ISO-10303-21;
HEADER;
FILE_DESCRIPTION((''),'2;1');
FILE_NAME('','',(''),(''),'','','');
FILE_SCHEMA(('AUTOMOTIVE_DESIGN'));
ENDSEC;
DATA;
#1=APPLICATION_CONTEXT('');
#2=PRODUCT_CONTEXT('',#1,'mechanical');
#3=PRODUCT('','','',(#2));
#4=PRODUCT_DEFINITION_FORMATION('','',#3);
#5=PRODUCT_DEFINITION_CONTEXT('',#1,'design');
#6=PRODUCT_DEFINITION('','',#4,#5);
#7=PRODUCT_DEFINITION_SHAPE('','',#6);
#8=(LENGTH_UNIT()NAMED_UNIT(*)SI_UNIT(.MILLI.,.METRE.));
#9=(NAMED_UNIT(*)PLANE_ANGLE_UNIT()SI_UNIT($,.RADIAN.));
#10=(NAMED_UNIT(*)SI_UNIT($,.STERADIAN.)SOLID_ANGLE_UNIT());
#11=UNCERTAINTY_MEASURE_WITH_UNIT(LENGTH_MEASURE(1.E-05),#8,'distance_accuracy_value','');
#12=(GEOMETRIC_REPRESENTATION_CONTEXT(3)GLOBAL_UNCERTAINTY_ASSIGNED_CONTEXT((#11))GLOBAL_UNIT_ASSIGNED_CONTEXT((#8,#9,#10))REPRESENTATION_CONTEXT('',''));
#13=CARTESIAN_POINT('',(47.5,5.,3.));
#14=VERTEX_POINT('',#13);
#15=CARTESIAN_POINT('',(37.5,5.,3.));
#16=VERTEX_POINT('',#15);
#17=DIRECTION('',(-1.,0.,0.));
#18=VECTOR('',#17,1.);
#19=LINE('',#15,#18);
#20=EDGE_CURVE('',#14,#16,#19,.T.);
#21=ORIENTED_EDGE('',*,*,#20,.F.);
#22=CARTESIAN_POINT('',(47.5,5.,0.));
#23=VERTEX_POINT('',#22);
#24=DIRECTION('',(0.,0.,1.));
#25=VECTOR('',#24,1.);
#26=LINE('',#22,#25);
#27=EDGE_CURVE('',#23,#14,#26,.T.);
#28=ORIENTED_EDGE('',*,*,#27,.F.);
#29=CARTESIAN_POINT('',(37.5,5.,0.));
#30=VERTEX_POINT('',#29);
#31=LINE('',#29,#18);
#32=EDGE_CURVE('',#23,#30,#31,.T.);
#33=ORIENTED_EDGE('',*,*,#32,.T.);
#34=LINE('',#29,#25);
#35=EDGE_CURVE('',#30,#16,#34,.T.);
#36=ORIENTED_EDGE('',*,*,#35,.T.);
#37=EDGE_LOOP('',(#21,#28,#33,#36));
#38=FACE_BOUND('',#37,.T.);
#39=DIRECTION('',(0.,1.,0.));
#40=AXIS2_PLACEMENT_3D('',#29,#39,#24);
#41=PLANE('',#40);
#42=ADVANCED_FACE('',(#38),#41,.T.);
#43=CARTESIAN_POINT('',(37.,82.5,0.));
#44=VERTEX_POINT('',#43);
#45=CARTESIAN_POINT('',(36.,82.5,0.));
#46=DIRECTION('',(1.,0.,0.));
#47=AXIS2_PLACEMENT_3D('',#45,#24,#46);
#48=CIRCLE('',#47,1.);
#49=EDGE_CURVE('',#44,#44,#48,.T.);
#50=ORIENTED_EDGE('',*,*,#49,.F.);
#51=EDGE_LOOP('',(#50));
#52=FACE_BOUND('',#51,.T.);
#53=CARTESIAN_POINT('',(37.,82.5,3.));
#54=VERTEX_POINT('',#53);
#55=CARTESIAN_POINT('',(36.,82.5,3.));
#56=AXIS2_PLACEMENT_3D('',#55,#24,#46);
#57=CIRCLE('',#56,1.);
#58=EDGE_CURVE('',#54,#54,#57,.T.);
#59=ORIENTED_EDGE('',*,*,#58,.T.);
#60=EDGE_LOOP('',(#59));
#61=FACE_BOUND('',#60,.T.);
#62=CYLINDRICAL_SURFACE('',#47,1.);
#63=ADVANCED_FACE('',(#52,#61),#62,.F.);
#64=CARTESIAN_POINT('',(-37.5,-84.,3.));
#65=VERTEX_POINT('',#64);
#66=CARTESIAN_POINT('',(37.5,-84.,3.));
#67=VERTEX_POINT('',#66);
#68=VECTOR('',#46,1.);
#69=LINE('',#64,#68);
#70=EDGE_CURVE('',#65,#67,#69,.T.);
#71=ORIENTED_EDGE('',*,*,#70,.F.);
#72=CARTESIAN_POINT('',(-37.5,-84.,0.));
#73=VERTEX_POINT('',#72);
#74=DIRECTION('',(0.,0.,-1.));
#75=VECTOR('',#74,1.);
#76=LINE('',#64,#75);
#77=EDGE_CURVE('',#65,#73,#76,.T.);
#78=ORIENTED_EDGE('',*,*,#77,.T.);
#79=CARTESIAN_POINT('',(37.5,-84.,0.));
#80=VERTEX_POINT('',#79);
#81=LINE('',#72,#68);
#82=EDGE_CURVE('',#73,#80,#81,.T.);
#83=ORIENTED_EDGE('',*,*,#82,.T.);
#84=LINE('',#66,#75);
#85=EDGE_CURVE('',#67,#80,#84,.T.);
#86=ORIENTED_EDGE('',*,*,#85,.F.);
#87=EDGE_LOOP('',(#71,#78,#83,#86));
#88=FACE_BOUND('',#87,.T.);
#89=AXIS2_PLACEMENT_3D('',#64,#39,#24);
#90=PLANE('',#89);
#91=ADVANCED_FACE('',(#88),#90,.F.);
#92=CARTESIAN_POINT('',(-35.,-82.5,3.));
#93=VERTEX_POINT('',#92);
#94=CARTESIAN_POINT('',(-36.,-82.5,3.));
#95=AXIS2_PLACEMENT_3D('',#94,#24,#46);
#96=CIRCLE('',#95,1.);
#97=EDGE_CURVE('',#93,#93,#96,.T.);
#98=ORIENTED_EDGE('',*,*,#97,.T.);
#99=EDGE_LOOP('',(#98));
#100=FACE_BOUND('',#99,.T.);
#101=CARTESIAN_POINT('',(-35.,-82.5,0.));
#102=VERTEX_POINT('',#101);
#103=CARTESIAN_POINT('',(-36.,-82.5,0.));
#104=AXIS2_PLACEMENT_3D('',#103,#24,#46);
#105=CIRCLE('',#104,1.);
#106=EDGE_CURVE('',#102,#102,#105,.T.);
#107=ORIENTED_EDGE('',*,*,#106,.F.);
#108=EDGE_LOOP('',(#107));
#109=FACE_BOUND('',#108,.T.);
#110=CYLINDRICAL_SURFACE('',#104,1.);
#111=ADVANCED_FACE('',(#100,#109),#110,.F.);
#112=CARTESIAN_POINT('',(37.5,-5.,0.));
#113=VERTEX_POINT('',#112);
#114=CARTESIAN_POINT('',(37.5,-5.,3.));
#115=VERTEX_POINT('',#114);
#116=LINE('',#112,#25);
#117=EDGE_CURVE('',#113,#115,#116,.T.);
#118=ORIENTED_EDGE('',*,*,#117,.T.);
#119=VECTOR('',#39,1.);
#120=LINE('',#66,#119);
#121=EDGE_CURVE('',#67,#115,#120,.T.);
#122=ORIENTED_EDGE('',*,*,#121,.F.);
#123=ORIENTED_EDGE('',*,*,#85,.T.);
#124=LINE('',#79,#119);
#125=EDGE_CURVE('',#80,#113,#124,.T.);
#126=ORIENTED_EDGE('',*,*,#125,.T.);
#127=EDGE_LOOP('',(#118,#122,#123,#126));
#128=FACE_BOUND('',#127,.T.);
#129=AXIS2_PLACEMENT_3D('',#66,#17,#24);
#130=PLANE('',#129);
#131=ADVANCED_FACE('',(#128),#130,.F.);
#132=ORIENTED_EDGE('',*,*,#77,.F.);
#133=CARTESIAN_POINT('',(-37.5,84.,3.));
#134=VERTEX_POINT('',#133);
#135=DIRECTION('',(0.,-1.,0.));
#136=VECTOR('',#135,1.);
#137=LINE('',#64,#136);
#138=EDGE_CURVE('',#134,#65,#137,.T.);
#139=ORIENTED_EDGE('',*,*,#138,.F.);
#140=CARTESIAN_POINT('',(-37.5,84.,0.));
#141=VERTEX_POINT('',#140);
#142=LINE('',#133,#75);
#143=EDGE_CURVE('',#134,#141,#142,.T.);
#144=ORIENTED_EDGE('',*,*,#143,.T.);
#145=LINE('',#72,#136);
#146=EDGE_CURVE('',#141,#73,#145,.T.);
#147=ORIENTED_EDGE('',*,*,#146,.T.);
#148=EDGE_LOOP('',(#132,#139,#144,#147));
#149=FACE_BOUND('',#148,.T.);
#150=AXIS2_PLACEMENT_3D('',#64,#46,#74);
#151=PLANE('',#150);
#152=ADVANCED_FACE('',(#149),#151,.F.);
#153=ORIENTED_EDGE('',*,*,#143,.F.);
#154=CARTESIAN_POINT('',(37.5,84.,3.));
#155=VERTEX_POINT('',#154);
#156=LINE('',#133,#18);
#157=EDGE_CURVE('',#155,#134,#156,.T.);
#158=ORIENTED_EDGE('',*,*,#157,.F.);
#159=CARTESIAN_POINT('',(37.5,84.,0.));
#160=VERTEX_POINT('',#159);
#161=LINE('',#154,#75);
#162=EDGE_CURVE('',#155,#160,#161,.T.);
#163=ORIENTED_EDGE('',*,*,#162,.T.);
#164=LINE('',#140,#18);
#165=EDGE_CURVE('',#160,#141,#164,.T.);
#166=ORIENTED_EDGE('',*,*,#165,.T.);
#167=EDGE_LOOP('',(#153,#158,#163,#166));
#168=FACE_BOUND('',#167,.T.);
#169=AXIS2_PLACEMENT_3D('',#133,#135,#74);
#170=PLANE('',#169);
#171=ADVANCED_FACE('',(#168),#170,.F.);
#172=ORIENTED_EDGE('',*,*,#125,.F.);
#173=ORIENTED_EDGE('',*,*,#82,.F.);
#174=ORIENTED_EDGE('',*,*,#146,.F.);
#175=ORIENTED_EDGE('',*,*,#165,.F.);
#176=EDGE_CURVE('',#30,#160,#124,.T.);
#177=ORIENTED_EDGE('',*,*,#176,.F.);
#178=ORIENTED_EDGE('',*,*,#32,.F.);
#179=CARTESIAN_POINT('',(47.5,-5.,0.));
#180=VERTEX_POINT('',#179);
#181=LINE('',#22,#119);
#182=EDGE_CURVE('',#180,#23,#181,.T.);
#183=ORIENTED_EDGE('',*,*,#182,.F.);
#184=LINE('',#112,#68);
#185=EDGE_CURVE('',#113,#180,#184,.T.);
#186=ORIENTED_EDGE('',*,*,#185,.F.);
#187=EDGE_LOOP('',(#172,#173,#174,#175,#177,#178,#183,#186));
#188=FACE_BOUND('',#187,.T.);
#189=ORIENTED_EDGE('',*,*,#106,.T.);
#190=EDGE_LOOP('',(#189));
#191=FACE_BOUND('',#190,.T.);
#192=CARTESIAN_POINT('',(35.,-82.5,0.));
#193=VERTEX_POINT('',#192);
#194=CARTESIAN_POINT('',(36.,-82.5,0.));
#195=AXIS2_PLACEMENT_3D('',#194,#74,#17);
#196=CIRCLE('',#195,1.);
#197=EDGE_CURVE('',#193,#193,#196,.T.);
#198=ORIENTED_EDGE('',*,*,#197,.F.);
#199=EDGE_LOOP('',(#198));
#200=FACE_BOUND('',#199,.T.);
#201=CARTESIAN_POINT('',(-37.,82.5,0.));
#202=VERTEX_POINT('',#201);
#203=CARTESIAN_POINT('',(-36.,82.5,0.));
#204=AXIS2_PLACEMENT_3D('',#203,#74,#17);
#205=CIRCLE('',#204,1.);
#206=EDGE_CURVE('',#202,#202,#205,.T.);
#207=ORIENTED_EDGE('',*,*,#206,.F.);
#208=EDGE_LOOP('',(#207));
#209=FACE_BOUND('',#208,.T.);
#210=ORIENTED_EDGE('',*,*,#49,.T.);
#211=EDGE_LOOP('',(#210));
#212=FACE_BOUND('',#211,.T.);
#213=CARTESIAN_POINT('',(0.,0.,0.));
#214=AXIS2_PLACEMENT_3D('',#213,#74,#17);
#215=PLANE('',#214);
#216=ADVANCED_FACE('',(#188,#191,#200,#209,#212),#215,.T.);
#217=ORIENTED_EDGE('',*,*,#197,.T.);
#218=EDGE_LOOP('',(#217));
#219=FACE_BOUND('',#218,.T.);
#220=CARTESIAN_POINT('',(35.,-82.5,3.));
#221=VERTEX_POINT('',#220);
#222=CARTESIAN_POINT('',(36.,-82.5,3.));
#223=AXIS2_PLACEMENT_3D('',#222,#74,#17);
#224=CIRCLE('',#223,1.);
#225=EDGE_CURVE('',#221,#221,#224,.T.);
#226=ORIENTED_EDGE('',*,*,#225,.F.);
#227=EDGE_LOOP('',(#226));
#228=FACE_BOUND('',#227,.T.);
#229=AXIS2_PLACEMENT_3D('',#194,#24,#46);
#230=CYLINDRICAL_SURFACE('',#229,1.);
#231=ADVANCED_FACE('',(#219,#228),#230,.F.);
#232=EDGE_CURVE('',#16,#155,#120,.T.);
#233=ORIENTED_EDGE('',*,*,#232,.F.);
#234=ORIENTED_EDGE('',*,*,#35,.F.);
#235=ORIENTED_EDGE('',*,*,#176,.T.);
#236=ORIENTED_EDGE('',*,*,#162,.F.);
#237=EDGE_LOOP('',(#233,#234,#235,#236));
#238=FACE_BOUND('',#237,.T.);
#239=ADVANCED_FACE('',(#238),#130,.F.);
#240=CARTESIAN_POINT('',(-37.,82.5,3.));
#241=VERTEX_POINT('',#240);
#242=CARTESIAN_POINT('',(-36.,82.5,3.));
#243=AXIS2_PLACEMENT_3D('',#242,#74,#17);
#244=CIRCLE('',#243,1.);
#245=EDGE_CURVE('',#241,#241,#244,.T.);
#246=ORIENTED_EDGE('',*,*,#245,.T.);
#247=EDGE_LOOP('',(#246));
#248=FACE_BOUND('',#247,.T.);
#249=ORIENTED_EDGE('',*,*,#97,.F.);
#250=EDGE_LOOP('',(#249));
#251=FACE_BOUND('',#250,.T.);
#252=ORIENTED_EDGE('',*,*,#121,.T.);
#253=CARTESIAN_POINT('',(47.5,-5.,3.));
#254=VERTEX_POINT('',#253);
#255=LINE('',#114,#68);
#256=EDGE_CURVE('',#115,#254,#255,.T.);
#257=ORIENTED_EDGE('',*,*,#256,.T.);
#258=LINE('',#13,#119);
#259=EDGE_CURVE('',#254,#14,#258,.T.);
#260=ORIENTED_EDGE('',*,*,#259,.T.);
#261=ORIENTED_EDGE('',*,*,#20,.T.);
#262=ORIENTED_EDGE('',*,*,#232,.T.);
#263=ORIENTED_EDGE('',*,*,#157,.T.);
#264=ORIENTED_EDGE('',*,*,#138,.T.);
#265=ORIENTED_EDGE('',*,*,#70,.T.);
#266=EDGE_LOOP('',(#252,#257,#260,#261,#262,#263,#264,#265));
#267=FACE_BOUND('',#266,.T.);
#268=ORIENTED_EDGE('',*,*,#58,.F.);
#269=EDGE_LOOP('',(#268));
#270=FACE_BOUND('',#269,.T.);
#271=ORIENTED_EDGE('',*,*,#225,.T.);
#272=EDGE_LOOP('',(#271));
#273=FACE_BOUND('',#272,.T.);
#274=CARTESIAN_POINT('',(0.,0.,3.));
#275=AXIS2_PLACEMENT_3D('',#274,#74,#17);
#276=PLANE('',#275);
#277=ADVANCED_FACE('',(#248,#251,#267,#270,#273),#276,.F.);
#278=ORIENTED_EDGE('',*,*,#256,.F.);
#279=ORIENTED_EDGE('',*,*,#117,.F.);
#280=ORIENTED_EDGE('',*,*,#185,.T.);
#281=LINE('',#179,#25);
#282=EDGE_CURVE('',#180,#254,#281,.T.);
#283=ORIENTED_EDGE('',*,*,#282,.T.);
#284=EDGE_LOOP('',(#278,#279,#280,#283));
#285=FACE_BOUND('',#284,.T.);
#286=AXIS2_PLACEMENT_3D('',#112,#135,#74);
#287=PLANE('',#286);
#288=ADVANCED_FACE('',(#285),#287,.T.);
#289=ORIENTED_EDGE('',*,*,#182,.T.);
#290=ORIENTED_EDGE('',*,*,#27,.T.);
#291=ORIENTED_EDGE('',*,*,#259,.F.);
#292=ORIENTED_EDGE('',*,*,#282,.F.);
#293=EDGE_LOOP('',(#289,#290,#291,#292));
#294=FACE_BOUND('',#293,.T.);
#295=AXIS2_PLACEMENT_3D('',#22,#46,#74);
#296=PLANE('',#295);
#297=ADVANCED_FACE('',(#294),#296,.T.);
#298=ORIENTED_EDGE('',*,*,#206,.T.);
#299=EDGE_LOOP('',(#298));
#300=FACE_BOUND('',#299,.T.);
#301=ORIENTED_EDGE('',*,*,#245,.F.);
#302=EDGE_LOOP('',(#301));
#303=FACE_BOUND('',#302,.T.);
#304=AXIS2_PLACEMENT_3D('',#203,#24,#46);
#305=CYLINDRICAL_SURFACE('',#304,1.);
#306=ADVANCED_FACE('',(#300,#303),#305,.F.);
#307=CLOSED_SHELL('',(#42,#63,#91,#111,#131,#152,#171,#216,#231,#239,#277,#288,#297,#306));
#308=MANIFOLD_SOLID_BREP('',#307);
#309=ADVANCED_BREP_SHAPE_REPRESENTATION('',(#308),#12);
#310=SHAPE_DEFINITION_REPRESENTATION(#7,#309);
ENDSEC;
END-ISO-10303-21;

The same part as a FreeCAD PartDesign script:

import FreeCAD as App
import Part
import Sketcher
Q = App.Units.Quantity


def add_polygon(sketch, points):
    """Adds a closed chain of lines whose ends are joined by coincident constraints."""
    first, n = sketch.GeometryCount, len(points)
    for a, b in zip(points, points[1:] + points[:1]):
        sketch.addGeometry(Part.LineSegment(App.Vector(*a, 0), App.Vector(*b, 0)), False)
    for i in range(n):
        sketch.addConstraint(Sketcher.Constraint("Coincident", first + i, 2, first + (i + 1) % n, 1))

doc = App.newDocument("Part")
body = doc.addObject("PartDesign::Body", "Body")

# Sketch on XY plane
sketch1 = doc.addObject("Sketcher::SketchObject", "Sketch")
body.addObject(sketch1)
sketch1.AttachmentSupport = (doc.XY_Plane, [""])
sketch1.MapMode = "FlatFace"
add_polygon(sketch1, [(-38, 84), (-38, -84), (38, -84), (38, 84)])  # lines 0-3
sketch1.addConstraint(Sketcher.Constraint("Vertical", 0))
sketch1.addConstraint(Sketcher.Constraint("Horizontal", 1))
sketch1.addConstraint(Sketcher.Constraint("Vertical", 2))
sketch1.addConstraint(Sketcher.Constraint("Horizontal", 3))
sketch1.addConstraint(Sketcher.Constraint("Symmetric", 0, 2, 2, 2, -1, 1))
sketch1.addConstraint(Sketcher.Constraint("DistanceX", 1, 1, 1, 2, Q("75 mm")))
sketch1.addConstraint(Sketcher.Constraint("DistanceY", 0, 2, 0, 1, Q("168 mm")))
pad1 = doc.addObject("PartDesign::Pad", "Pad")
body.addObject(pad1)
pad1.Profile = sketch1
pad1.Length = 3

# Sketch on XY plane
sketch2 = doc.addObject("Sketcher::SketchObject", "Sketch001")
body.addObject(sketch2)
sketch2.AttachmentSupport = (doc.XY_Plane, [""])
sketch2.MapMode = "FlatFace"
sketch2.AttachmentOffset = App.Placement(App.Vector(0, 0, 3), App.Rotation())
sketch2.addGeometry(Part.Circle(App.Vector(36, 82.5, 0), App.Vector(0, 0, 1), 1), False)
sketch2.addGeometry(Part.Circle(App.Vector(-36, 82.5, 0), App.Vector(0, 0, 1), 1), False)
sketch2.addGeometry(Part.Circle(App.Vector(36, -82.5, 0), App.Vector(0, 0, 1), 1), False)
sketch2.addGeometry(Part.Circle(App.Vector(-36, -82.5, 0), App.Vector(0, 0, 1), 1), False)
sketch2.addConstraint(Sketcher.Constraint("Equal", 0, 1))
sketch2.addConstraint(Sketcher.Constraint("Equal", 1, 2))
sketch2.addConstraint(Sketcher.Constraint("Equal", 2, 3))
sketch2.addConstraint(Sketcher.Constraint("Symmetric", 1, 3, 2, 3, -1, 1))
sketch2.addConstraint(Sketcher.Constraint("Symmetric", 0, 3, 3, 3, -1, 1))
sketch2.addConstraint(Sketcher.Constraint("Symmetric", 0, 3, 1, 3, -2))
sketch2.addConstraint(Sketcher.Constraint("Diameter", 0, Q("2 mm")))
sketch2.addConstraint(Sketcher.Constraint("DistanceX", -1, 1, 0, 3, Q("36 mm")))
sketch2.addConstraint(Sketcher.Constraint("DistanceY", 2, 3, 0, 3, Q("165 mm")))
pocket1 = doc.addObject("PartDesign::Pocket", "Pocket")
body.addObject(pocket1)
pocket1.Profile = sketch2
pocket1.Type = "ThroughAll"

# Sketch on XY plane
sketch3 = doc.addObject("Sketcher::SketchObject", "Sketch002")
body.addObject(sketch3)
sketch3.AttachmentSupport = (doc.XY_Plane, [""])
sketch3.MapMode = "FlatFace"
sketch3.AttachmentOffset = App.Placement(App.Vector(0, 0, 3), App.Rotation())
add_polygon(sketch3, [(38, 5), (38, -5), (48, -5), (48, 5)])  # lines 0-3
sketch3.addConstraint(Sketcher.Constraint("Vertical", 0))
sketch3.addConstraint(Sketcher.Constraint("Horizontal", 1))
sketch3.addConstraint(Sketcher.Constraint("Vertical", 2))
sketch3.addConstraint(Sketcher.Constraint("Horizontal", 3))
sketch3.addConstraint(Sketcher.Constraint("Equal", 3, 0))
sketch3.addConstraint(Sketcher.Constraint("DistanceX", 1, 1, 1, 2, Q("10 mm")))
sketch3.addConstraint(Sketcher.Constraint("DistanceY", 0, 2, -1, 1, Q("5 mm")))
sketch3.addConstraint(Sketcher.Constraint("DistanceX", -1, 1, 0, 2, Q("37.5 mm")))
pad2 = doc.addObject("PartDesign::Pad", "Pad001")
body.addObject(pad2)
pad2.Profile = sketch3
pad2.Length = 3
pad2.Reversed = True

doc.recompute()
